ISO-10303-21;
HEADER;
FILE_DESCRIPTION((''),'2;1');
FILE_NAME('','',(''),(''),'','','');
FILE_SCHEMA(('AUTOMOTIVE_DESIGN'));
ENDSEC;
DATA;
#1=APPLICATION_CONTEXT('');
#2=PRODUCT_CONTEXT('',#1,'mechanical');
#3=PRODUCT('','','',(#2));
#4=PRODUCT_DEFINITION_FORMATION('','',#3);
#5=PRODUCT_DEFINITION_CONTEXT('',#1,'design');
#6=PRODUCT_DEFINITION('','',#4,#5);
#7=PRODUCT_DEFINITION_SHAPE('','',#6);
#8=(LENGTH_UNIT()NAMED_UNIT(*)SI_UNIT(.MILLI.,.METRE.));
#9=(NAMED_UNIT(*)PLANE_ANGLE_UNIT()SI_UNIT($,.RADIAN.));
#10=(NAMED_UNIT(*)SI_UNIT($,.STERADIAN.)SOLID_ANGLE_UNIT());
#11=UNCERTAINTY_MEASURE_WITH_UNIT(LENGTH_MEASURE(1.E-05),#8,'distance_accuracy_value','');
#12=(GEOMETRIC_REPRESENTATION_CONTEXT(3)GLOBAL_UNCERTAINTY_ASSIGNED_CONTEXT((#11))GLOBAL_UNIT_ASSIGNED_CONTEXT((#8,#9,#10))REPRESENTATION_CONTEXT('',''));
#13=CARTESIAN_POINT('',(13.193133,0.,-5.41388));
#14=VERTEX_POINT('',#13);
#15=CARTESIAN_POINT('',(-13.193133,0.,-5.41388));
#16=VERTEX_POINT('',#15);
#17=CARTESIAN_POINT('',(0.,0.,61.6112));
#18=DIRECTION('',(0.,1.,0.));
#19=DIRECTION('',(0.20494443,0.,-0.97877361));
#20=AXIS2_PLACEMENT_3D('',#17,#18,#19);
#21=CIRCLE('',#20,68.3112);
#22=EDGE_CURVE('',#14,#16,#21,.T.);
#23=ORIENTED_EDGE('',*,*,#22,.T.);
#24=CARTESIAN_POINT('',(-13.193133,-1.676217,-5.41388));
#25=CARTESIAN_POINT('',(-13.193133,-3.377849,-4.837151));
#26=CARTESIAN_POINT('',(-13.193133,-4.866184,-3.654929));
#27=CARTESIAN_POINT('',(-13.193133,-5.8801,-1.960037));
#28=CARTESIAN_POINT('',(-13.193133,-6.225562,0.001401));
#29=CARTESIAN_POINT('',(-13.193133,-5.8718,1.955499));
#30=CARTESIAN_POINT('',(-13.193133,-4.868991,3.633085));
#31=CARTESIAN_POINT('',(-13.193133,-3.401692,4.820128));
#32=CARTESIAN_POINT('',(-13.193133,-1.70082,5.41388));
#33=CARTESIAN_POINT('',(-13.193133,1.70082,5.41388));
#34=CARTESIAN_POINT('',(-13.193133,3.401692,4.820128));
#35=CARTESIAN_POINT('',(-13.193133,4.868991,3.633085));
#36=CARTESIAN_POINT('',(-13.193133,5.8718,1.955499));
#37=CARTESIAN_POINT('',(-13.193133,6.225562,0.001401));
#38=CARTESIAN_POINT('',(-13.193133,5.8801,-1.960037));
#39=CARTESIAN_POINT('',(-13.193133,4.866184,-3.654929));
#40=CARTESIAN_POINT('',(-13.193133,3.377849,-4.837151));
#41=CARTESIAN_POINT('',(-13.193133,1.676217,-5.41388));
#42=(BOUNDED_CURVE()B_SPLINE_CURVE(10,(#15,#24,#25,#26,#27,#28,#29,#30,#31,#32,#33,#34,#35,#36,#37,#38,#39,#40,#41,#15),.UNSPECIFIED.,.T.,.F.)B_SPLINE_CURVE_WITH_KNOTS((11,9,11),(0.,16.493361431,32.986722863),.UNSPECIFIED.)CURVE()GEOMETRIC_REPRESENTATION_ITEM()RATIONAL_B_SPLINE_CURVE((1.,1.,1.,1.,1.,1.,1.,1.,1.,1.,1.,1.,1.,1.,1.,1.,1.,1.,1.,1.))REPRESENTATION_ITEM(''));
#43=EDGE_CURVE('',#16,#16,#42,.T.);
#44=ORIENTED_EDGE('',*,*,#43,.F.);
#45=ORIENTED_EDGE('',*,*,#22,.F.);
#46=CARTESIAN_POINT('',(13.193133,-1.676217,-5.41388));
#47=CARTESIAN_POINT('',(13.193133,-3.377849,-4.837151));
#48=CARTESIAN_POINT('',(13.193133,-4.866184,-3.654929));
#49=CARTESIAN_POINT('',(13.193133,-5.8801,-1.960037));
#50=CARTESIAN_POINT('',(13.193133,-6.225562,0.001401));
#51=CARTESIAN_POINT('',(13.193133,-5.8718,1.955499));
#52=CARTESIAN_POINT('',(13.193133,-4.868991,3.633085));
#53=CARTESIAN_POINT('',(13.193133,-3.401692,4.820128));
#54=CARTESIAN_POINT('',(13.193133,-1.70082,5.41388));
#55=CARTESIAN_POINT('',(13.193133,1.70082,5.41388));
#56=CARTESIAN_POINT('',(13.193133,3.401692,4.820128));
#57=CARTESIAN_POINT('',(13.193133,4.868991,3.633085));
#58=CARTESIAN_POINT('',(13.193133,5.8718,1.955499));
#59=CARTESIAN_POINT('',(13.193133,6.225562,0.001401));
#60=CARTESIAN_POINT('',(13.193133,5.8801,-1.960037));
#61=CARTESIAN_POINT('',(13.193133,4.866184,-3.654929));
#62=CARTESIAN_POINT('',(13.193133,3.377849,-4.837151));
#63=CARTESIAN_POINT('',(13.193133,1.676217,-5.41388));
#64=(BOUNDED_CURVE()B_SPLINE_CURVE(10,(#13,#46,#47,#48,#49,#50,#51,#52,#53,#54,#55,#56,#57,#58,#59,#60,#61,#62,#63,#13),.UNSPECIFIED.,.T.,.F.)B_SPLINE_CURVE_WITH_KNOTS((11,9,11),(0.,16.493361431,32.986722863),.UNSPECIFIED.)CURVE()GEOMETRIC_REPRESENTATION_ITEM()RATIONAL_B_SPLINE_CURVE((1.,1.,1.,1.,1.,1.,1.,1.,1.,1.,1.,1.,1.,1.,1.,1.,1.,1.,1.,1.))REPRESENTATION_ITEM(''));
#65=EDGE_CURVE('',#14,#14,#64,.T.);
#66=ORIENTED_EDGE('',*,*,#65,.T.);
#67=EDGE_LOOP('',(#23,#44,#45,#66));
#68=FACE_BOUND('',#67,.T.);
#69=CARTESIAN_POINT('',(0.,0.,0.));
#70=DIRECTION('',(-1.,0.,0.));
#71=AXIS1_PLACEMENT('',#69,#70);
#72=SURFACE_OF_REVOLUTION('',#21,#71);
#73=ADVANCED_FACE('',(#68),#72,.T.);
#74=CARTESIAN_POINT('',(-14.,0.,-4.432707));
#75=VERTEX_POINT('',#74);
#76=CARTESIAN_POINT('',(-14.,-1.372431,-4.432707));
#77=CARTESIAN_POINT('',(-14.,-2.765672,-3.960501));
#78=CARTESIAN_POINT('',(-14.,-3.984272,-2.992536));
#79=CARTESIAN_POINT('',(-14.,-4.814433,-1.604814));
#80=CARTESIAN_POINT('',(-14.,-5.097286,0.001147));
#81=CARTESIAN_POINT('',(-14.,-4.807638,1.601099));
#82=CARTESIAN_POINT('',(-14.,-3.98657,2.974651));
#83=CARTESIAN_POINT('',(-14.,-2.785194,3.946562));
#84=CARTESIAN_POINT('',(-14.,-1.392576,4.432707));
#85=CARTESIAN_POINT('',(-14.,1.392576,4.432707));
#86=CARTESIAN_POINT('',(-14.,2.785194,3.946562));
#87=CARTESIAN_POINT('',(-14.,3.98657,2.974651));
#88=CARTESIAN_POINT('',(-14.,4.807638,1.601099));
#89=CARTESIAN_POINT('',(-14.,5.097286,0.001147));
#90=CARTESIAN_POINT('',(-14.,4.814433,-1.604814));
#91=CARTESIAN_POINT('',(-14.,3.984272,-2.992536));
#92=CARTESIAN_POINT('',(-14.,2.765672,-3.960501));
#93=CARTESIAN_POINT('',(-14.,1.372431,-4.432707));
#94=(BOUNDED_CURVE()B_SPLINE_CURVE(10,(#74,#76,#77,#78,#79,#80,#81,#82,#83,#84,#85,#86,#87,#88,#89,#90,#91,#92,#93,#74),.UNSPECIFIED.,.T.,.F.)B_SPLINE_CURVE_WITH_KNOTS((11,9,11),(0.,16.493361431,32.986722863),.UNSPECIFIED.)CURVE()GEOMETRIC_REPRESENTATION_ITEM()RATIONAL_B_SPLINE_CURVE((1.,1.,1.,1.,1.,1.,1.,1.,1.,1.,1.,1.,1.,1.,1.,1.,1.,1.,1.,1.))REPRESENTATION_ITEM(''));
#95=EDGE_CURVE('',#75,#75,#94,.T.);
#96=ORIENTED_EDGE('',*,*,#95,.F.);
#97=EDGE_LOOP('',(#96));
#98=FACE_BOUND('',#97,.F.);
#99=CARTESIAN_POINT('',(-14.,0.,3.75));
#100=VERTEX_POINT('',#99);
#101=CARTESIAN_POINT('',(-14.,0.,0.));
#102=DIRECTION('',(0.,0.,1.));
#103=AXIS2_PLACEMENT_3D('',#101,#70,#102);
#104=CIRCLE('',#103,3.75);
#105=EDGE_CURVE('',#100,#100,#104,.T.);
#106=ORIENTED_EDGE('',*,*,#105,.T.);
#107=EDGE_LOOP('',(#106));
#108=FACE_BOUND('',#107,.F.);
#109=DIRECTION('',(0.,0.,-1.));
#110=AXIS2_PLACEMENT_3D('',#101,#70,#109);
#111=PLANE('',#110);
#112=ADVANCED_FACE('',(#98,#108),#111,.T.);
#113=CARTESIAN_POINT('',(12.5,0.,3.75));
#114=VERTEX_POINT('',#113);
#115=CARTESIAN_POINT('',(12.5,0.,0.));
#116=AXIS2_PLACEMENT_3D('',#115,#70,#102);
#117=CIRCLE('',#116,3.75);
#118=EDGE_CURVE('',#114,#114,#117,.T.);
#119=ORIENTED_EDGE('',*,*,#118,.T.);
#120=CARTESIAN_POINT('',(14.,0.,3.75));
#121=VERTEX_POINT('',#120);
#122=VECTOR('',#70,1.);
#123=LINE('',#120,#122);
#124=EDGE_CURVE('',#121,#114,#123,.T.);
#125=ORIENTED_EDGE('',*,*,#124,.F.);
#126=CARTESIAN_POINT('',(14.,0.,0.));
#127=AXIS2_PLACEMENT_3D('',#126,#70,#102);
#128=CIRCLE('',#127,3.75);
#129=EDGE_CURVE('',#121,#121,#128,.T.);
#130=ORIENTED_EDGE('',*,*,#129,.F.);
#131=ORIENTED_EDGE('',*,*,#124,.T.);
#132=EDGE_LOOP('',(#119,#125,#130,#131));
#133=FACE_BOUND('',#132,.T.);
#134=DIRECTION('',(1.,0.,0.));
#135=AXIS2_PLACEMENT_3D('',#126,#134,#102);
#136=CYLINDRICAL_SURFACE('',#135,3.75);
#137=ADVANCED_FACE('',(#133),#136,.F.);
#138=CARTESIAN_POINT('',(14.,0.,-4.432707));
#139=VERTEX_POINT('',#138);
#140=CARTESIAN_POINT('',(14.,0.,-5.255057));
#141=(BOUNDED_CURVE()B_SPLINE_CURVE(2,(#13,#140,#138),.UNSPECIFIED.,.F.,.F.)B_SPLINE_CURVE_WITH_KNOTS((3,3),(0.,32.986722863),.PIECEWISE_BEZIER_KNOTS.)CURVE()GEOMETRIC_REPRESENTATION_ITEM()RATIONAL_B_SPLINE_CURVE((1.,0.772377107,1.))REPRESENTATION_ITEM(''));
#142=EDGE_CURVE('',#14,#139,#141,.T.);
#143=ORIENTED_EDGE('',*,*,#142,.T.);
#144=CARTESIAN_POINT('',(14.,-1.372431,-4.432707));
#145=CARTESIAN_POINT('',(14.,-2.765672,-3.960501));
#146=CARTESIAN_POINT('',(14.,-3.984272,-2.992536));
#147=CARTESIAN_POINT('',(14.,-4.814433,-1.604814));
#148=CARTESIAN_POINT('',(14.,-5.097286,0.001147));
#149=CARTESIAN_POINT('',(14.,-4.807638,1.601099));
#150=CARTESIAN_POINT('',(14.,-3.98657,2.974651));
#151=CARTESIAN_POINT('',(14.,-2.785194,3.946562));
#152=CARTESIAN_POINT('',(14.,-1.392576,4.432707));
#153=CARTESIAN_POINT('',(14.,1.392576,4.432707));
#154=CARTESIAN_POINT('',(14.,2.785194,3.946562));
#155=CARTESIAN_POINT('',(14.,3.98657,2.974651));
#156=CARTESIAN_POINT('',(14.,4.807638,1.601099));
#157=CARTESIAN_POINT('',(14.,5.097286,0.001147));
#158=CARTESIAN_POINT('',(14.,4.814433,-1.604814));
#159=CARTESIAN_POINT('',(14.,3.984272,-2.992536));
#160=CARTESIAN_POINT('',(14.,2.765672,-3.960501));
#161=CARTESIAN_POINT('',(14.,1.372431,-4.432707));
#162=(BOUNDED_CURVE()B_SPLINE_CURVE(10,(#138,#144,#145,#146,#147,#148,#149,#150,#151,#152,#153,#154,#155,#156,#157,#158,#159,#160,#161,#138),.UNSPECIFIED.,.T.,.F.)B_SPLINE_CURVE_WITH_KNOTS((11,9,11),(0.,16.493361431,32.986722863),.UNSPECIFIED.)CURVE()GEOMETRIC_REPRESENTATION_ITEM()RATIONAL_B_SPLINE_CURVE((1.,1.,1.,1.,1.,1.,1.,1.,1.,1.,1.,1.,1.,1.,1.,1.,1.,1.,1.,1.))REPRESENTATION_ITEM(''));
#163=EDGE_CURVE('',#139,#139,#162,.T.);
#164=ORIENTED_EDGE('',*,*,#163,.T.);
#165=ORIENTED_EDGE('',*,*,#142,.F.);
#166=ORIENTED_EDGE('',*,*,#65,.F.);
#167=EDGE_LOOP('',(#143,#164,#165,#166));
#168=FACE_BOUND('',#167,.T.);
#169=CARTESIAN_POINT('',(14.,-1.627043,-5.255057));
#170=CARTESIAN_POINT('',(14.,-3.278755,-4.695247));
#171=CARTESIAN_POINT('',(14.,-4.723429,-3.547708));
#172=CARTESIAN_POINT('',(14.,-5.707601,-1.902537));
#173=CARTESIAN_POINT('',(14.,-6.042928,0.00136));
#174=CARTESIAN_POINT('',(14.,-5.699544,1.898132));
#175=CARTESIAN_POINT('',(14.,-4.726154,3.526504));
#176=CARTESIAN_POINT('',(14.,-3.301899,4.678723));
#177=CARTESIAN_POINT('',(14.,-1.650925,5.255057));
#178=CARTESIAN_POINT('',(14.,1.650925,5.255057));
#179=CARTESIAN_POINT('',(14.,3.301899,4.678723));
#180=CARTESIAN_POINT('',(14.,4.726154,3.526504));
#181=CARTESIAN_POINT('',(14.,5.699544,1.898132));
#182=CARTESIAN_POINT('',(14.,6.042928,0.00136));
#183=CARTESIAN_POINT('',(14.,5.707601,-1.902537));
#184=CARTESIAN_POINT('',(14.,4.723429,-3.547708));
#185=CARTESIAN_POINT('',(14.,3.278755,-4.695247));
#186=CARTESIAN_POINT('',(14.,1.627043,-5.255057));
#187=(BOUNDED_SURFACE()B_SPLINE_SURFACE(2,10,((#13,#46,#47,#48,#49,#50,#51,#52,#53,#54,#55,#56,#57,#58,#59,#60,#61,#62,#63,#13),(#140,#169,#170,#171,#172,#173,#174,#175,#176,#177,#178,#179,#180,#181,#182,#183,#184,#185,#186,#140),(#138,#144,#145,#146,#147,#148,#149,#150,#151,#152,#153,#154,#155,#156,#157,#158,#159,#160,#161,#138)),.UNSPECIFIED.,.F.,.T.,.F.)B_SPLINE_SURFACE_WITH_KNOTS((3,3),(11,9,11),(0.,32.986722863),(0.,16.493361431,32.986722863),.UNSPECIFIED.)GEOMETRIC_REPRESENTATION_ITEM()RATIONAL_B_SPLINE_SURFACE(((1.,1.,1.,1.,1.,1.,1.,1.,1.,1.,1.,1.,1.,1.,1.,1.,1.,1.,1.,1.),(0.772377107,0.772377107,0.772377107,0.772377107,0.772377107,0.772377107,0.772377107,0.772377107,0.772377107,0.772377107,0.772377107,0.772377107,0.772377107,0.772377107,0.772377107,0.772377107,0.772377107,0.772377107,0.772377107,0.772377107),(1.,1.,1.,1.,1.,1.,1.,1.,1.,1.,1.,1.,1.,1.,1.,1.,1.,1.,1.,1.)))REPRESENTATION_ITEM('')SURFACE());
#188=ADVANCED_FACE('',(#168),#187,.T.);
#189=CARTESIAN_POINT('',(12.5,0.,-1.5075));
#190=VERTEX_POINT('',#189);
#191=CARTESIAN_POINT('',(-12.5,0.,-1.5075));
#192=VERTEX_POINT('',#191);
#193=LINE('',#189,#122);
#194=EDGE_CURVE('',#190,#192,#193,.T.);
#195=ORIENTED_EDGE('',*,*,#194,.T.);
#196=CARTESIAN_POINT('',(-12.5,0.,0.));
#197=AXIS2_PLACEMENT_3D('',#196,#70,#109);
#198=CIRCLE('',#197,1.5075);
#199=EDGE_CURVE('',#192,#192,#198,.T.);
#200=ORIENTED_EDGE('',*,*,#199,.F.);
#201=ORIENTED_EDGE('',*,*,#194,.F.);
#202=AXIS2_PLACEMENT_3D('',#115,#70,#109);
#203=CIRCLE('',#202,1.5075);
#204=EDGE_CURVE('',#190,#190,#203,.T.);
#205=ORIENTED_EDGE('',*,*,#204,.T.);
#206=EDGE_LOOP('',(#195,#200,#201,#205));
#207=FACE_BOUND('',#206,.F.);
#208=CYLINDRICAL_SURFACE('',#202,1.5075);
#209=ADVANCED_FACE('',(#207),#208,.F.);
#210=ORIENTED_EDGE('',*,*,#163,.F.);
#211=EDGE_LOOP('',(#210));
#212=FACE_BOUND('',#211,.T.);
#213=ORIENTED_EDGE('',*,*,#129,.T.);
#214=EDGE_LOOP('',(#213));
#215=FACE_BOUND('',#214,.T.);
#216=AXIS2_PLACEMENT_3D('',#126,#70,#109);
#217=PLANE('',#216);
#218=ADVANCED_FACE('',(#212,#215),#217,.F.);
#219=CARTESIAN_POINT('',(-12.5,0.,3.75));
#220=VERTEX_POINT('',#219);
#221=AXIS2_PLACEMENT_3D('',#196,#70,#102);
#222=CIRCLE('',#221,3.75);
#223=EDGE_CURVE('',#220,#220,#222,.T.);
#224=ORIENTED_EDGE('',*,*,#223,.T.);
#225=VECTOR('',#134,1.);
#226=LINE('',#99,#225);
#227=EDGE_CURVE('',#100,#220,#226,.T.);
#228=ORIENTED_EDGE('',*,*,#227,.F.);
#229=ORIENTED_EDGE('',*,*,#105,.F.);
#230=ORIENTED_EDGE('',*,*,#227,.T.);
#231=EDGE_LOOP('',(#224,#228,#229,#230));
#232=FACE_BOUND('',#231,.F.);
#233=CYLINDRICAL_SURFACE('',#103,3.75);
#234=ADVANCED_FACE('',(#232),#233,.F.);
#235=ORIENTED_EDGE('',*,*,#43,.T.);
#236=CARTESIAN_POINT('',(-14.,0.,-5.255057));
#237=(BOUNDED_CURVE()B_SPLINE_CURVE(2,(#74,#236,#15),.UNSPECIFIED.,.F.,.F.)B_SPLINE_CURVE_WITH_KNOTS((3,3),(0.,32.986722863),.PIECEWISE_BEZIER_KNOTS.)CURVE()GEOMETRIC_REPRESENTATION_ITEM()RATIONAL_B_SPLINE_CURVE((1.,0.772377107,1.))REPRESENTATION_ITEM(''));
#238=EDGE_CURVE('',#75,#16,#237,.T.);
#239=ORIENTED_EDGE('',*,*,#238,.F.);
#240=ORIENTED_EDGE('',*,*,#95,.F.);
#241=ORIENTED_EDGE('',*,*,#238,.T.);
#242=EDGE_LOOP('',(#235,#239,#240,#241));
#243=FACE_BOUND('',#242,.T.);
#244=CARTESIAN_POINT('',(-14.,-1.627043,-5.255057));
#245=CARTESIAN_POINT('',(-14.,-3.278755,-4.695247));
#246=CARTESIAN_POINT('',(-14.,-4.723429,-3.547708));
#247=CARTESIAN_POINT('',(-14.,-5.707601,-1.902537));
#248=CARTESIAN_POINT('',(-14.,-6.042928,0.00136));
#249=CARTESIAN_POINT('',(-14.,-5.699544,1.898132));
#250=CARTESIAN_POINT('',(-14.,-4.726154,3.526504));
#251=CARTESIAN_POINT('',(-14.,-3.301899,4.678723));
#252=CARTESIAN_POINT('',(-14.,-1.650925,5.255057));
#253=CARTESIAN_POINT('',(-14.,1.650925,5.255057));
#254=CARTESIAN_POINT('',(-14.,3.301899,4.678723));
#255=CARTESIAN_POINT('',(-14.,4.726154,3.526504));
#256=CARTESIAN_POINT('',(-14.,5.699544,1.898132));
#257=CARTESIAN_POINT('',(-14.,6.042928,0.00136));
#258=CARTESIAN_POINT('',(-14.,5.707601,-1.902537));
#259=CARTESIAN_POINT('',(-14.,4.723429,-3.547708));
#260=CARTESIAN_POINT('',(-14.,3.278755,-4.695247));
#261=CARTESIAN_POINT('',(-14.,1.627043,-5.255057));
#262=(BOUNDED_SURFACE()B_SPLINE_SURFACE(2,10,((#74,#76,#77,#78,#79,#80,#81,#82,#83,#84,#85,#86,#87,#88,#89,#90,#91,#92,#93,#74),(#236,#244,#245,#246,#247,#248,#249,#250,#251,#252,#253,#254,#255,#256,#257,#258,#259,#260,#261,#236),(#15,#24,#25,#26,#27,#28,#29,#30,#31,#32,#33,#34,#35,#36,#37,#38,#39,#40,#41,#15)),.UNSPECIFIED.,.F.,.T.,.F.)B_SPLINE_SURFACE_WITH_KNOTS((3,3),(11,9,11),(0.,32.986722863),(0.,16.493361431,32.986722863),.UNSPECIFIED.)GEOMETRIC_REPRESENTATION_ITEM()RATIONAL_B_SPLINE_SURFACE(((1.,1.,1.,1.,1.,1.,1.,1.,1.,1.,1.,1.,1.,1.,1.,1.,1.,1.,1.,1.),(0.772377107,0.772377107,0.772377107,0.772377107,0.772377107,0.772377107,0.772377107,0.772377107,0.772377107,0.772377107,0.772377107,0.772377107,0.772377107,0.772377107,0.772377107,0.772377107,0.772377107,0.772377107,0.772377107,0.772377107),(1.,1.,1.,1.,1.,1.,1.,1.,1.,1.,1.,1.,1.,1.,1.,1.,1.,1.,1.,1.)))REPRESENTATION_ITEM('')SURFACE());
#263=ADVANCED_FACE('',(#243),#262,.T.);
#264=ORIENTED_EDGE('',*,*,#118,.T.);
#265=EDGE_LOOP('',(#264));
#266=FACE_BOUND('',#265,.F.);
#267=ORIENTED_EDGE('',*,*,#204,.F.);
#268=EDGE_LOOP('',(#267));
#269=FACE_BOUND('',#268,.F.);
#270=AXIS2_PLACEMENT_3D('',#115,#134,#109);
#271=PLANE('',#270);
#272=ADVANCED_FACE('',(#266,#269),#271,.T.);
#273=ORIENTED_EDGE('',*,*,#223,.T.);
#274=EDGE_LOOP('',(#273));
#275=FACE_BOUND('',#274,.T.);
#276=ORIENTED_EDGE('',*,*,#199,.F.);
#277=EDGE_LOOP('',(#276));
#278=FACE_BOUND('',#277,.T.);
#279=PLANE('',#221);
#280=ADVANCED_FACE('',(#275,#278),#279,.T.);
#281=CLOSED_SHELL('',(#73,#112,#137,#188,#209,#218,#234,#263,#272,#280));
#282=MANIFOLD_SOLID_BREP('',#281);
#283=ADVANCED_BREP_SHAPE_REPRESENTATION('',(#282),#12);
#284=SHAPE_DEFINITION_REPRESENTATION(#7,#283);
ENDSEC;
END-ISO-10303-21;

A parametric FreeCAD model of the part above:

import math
import FreeCAD as App
import Part
import Sketcher

V = App.Vector
Q = App.Units.Quantity


def edges_at(feature, points):
    """Names of the edges that pass closest to the given points."""
    edges = feature.Shape.Edges
    near = lambda p: min(range(len(edges)), key=lambda i: edges[i].distToShape(Part.Vertex(*p))[0])
    return sorted({f"Edge{near(p) + 1}" for p in points})

doc = App.newDocument("Part")
body = doc.addObject("PartDesign::Body", "Body")

# Sketch on XZ plane
sketch1 = body.newObject("Sketcher::SketchObject", "Sketch")
sketch1.AttachmentSupport = (doc.getObject("XZ_Plane"), [""])
sketch1.MapMode = "FlatFace"
sketch1.addGeometry(Part.LineSegment(V(-14, 0, 0), V(14, 0, 0)), False)
sketch1.addGeometry(Part.LineSegment(V(14, 0, 0), V(14, -5, 0)), False)
sketch1.addGeometry(Part.ArcOfCircle(Part.Circle(V(0, 62, 0), V(0, 0, 1), 68), math.radians(-102), math.radians(-78)), False)
sketch1.addGeometry(Part.LineSegment(V(-14, -5, 0), V(-14, 0, 0)), False)
sketch1.addConstraint(Sketcher.Constraint("Coincident", 0, 2, 1, 1))
sketch1.addConstraint(Sketcher.Constraint("Coincident", 1, 2, 2, 2))
sketch1.addConstraint(Sketcher.Constraint("Coincident", 2, 1, 3, 1))
sketch1.addConstraint(Sketcher.Constraint("Coincident", 3, 2, 0, 1))
sketch1.addConstraint(Sketcher.Constraint("Horizontal", 0))
sketch1.addConstraint(Sketcher.Constraint("Vertical", 1))
sketch1.addConstraint(Sketcher.Constraint("Vertical", 3))
sketch1.addConstraint(Sketcher.Constraint("Symmetric", 0, 2, 3, 2, -1, 1))
sketch1.addConstraint(Sketcher.Constraint("PointOnObject", 2, 3, -2))
sketch1.addConstraint(Sketcher.Constraint("DistanceX", -1, 1, 0, 2, Q("14 mm")))
sketch1.addConstraint(Sketcher.Constraint("DistanceY", 1, 2, 1, 1, Q("5.25 mm")))
sketch1.addConstraint(Sketcher.Constraint("Radius", 2, Q("68.3112 mm")))
revolution = body.newObject("PartDesign::Revolution", "Revolution")
revolution.Profile = sketch1
revolution.ReferenceAxis = (sketch1, ["H_Axis"])
revolution.Angle = 360
doc.recompute()

fillet = body.newObject("PartDesign::Fillet", "Fillet")
fillet.Base = (revolution, edges_at(revolution, [(14, 0, 5.25), (-14, 0, 5.25)]))
fillet.Radius = 1

# Sketch on YZ plane
sketch2 = body.newObject("Sketcher::SketchObject", "Sketch001")
sketch2.AttachmentSupport = (doc.getObject("YZ_Plane"), [""])
sketch2.MapMode = "FlatFace"
sketch2.AttachmentOffset = App.Placement(V(0, 0, -14), App.Rotation())
sketch2.addGeometry(Part.Circle(V(0, 0, 0), V(0, 0, 1), 3.8), False)
sketch2.addConstraint(Sketcher.Constraint("Coincident", 0, 3, -1, 1))
sketch2.addConstraint(Sketcher.Constraint("Diameter", 0, Q("7.5 mm")))
pocket1 = body.newObject("PartDesign::Pocket", "Pocket")
pocket1.Profile = sketch2
pocket1.Length = 1.5
pocket1.Reversed = True
doc.recompute()

mirrored = body.newObject("PartDesign::Mirrored", "Mirrored")
mirrored.Originals = [pocket1]
mirrored.MirrorPlane = (doc.getObject("YZ_Plane"), [""])
body.Tip = mirrored

# Sketch on YZ plane
sketch3 = body.newObject("Sketcher::SketchObject", "Sketch002")
sketch3.AttachmentSupport = (doc.getObject("YZ_Plane"), [""])
sketch3.MapMode = "FlatFace"
sketch3.AttachmentOffset = App.Placement(V(0, 0, 12.5), App.Rotation())
sketch3.addGeometry(Part.Circle(V(0, 0, 0), V(0, 0, 1), 1.5), False)
sketch3.addConstraint(Sketcher.Constraint("Coincident", 0, 3, -1, 1))
sketch3.addConstraint(Sketcher.Constraint("Diameter", 0, Q("3.015 mm")))
doc.recompute()
hole = body.newObject("PartDesign::Hole", "Hole")
hole.Profile = sketch3
hole.ThreadType = "None"
hole.Diameter = 3.015
hole.DepthType = "ThroughAll"

doc.recompute()
